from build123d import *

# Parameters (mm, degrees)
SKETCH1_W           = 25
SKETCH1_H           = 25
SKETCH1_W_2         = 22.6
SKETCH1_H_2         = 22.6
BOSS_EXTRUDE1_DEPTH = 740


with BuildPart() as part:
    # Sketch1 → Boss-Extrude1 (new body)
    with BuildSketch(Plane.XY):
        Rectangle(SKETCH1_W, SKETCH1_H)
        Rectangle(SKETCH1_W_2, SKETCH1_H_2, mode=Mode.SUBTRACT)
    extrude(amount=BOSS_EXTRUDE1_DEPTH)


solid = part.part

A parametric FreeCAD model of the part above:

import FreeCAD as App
import Part
import Sketcher
from FreeCAD import Vector

doc = App.newDocument("Part")
params = doc.addObject("Spreadsheet::Sheet", "Params")
for row, (alias, value) in enumerate([
    ("sketch1_width", "25 mm"),
    ("sketch1_width2", "22.6 mm"),
    ("pad1_length", "740 mm"),
], start=1):
    params.set(f"A{row}", alias)
    params.set(f"B{row}", "=" + value)
    params.setAlias(f"B{row}", alias)

body = doc.addObject("PartDesign::Body", "Body")

sketch1 = doc.addObject("Sketcher::SketchObject", "Sketch")
body.addObject(sketch1)
sketch1.AttachmentSupport = (doc.XY_Plane, [""])
sketch1.MapMode = "FlatFace"
sketch1.addGeometry([
    Part.LineSegment(Vector(-12, 12, 0), Vector(-12, -12, 0)),
    Part.LineSegment(Vector(-12, -12, 0), Vector(12, -12, 0)),
    Part.LineSegment(Vector(12, -12, 0), Vector(12, 12, 0)),
    Part.LineSegment(Vector(12, 12, 0), Vector(-12, 12, 0)),
    Part.LineSegment(Vector(11, -11, 0), Vector(-11, -11, 0)),
    Part.LineSegment(Vector(-11, -11, 0), Vector(-11, 11, 0)),
    Part.LineSegment(Vector(-11, 11, 0), Vector(11, 11, 0)),
    Part.LineSegment(Vector(11, 11, 0), Vector(11, -11, 0)),
], False)
sketch1.addConstraint([
    Sketcher.Constraint("Coincident", 0, 2, 1, 1),
    Sketcher.Constraint("Coincident", 1, 2, 2, 1),
    Sketcher.Constraint("Coincident", 2, 2, 3, 1),
    Sketcher.Constraint("Coincident", 3, 2, 0, 1),
    Sketcher.Constraint("Coincident", 4, 2, 5, 1),
    Sketcher.Constraint("Coincident", 5, 2, 6, 1),
    Sketcher.Constraint("Coincident", 6, 2, 7, 1),
    Sketcher.Constraint("Coincident", 7, 2, 4, 1),
    Sketcher.Constraint("Vertical", 0),
    Sketcher.Constraint("Horizontal", 1),
    Sketcher.Constraint("Vertical", 2),
    Sketcher.Constraint("Horizontal", 3),
    Sketcher.Constraint("Horizontal", 4),
    Sketcher.Constraint("Vertical", 5),
    Sketcher.Constraint("Horizontal", 6),
    Sketcher.Constraint("Vertical", 7),
    Sketcher.Constraint("Symmetric", 0, 2, 2, 2, -1, 1),
    Sketcher.Constraint("Symmetric", 4, 2, 6, 2, -1, 1),
    Sketcher.Constraint("Equal", 3, 0),
    Sketcher.Constraint("Equal", 6, 5),
    Sketcher.Constraint("DistanceX", 1, 1, 1, 2, 25.0),
    Sketcher.Constraint("DistanceX", 4, 2, 4, 1, 22.6),
])
sketch1.setExpression("Constraints[20]", "Params.sketch1_width")
sketch1.setExpression("Constraints[21]", "Params.sketch1_width2")
pad1 = doc.addObject("PartDesign::Pad", "Pad")
body.addObject(pad1)
pad1.Profile = sketch1
pad1.setExpression("Length", "Params.pad1_length")

doc.recompute()
